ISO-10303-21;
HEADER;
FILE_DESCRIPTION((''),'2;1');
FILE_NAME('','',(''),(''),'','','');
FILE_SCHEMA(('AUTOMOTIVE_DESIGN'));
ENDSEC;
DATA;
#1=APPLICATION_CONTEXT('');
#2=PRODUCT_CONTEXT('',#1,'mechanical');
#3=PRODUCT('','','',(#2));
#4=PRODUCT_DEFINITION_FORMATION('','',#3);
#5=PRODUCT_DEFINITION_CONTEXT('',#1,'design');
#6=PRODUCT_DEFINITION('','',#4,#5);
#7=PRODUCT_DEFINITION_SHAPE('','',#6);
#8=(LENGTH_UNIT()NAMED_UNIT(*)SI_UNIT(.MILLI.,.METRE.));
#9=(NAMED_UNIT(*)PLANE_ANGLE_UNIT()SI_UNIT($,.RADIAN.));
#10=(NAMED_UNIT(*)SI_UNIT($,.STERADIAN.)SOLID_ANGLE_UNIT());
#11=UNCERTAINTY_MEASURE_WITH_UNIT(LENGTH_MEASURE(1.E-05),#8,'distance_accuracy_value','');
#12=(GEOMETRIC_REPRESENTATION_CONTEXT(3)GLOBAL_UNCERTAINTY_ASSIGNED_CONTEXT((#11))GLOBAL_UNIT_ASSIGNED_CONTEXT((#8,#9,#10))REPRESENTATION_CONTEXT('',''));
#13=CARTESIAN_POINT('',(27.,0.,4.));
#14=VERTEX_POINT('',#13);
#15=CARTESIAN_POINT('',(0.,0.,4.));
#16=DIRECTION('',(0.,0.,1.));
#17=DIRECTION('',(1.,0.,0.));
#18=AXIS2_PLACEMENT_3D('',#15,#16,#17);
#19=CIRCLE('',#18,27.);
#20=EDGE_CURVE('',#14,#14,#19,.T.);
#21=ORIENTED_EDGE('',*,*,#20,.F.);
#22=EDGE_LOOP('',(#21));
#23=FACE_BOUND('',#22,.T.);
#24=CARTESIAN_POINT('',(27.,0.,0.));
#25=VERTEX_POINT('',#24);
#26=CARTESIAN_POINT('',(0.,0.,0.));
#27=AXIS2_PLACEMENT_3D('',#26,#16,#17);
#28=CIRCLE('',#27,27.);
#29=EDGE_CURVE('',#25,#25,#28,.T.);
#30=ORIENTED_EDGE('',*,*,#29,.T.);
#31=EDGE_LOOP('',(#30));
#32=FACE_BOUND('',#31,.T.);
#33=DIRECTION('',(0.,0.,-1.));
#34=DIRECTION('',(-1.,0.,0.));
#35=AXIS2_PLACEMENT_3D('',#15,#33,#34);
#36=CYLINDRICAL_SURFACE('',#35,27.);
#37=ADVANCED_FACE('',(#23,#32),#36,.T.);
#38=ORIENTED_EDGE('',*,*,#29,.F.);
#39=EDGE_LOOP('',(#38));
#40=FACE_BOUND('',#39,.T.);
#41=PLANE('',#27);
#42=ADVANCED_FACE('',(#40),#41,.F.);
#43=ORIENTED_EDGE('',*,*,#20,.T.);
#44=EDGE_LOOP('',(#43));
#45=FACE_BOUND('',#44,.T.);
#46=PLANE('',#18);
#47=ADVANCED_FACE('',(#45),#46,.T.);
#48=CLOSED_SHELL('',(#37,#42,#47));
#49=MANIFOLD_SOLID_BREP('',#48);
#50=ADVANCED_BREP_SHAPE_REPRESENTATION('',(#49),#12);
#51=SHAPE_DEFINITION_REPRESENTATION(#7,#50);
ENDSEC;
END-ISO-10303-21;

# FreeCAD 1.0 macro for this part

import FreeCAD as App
import Part
import Sketcher

V = App.Vector

doc = App.newDocument("Part")
body = doc.addObject("PartDesign::Body", "Body")

# Sketch on XY plane
sketch1 = doc.addObject("Sketcher::SketchObject", "Sketch")
body.addObject(sketch1)
sketch1.AttachmentSupport = (doc.XY_Plane, [""])
sketch1.MapMode = "FlatFace"
sketch1.addGeometry(Part.Circle(V(0, 0, 0), V(0, 0, 1), 27), False)
sketch1.addConstraint(Sketcher.Constraint("Coincident", 0, 3, -1, 1))
sketch1.addConstraint(Sketcher.Constraint("Diameter", 0, 54.0))
pad1 = doc.addObject("PartDesign::Pad", "Pad")
body.addObject(pad1)
pad1.Profile = sketch1
pad1.Length = 4

doc.recompute()
